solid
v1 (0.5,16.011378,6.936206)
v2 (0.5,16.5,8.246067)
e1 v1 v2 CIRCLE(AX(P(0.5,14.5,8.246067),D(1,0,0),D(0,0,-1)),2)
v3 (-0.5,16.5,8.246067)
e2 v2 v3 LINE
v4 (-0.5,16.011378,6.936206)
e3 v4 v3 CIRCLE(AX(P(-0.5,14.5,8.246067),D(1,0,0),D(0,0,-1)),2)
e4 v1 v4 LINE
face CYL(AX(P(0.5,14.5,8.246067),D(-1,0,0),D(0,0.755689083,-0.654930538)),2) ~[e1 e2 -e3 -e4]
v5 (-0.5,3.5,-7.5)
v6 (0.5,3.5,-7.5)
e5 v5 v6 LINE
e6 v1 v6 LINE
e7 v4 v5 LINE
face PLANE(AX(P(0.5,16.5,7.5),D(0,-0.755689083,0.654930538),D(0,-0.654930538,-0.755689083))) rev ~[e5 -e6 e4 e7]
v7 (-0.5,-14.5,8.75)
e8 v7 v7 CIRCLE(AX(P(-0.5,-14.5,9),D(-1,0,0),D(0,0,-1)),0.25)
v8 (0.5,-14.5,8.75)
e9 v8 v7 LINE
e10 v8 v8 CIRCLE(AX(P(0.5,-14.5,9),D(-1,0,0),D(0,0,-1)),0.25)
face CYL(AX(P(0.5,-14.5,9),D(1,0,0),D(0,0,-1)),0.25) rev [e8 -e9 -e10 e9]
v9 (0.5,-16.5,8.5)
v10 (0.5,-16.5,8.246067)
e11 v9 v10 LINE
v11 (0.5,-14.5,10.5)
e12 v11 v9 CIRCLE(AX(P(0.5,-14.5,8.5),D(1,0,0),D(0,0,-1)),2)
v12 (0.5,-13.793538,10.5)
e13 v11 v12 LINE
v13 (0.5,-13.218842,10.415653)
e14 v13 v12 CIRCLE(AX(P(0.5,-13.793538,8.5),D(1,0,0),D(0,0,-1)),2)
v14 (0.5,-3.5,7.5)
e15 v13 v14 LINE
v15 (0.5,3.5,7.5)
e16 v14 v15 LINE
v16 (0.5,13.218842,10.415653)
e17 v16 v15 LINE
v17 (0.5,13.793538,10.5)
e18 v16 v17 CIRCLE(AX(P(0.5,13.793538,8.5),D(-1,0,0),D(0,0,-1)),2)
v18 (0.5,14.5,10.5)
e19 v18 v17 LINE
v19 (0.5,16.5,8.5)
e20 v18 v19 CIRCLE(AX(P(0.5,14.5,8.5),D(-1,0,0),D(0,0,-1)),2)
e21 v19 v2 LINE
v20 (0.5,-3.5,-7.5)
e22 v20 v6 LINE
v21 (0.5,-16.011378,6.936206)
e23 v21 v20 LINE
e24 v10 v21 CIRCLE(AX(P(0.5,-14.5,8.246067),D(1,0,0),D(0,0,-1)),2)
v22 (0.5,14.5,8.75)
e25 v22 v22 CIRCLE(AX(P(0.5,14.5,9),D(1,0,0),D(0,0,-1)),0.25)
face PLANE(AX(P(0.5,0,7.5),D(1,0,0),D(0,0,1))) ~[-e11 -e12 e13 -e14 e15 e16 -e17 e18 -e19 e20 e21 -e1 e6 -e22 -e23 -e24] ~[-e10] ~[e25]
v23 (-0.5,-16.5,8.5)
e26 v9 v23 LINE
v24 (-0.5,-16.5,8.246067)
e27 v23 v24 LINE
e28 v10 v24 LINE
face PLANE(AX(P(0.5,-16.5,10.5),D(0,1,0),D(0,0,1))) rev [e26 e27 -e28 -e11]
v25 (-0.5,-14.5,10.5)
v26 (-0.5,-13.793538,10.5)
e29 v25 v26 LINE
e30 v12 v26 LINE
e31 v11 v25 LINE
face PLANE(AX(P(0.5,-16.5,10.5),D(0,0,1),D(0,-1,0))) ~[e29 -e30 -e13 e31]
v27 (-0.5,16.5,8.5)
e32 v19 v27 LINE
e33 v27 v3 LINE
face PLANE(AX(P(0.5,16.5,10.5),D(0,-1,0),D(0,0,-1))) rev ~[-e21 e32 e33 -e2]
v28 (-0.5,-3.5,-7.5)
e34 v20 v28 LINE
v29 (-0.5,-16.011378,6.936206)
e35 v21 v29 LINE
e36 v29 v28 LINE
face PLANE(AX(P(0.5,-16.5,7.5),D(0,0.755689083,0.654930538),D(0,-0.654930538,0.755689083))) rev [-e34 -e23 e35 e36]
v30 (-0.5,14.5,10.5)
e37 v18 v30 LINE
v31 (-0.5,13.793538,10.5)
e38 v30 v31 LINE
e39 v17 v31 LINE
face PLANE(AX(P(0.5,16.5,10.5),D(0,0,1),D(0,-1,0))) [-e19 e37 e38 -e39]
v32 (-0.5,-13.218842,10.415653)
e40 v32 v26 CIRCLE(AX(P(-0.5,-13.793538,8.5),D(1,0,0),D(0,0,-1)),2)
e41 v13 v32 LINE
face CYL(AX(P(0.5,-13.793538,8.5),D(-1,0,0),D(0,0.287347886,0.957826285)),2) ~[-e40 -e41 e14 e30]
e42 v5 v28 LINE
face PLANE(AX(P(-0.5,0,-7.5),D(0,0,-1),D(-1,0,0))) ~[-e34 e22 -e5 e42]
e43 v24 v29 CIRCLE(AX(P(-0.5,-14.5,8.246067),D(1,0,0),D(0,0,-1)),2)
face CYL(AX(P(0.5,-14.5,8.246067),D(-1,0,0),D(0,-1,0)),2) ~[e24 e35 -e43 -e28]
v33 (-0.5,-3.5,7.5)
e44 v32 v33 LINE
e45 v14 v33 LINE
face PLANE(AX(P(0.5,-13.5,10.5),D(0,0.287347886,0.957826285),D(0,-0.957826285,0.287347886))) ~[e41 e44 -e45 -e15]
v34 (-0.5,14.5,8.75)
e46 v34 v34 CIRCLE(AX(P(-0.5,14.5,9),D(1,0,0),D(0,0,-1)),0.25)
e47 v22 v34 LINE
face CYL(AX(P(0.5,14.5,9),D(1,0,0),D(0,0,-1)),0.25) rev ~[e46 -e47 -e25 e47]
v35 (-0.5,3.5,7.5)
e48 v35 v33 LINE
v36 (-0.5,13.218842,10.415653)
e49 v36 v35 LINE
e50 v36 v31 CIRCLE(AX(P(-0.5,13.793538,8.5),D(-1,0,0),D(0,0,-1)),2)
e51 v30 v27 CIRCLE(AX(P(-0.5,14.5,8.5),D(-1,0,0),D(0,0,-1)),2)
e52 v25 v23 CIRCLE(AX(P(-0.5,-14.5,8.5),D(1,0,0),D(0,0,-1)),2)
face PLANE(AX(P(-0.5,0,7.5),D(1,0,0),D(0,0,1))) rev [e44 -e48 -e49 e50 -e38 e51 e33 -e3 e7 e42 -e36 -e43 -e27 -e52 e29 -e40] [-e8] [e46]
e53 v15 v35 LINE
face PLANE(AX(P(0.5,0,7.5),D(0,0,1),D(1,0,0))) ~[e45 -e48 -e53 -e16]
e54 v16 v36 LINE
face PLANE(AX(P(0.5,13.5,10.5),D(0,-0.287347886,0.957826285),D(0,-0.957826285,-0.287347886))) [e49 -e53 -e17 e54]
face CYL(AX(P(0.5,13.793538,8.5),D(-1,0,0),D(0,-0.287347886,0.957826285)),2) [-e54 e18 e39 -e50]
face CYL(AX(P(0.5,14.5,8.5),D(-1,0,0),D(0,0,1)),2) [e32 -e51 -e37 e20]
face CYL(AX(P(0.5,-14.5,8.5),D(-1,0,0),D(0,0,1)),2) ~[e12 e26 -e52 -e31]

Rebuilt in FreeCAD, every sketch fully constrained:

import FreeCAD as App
import Part
import Sketcher


def edges_at(feature, points):
    """Names of the edges that pass closest to the given points."""
    edges = feature.Shape.Edges
    near = lambda p: min(range(len(edges)), key=lambda i: edges[i].distToShape(Part.Vertex(*p))[0])
    return sorted({f"Edge{near(p) + 1}" for p in points})

doc = App.newDocument("Part")
body = doc.addObject("PartDesign::Body", "Body")

sketch1 = doc.addObject("Sketcher::SketchObject", "Sketch")
body.addObject(sketch1)
sketch1.AttachmentSupport = (doc.XZ_Plane, [""])
sketch1.MapMode = "FlatFace"
sketch1.addGeometry(Part.LineSegment(App.Vector(-0.5, 7.5, 0), App.Vector(0.5, 7.5, 0)), False)
sketch1.addGeometry(Part.LineSegment(App.Vector(0.5, 7.5, 0), App.Vector(0.5, -7.5, 0)), False)
sketch1.addGeometry(Part.LineSegment(App.Vector(0.5, -7.5, 0), App.Vector(-0.5, -7.5, 0)), False)
sketch1.addGeometry(Part.LineSegment(App.Vector(-0.5, -7.5, 0), App.Vector(-0.5, 7.5, 0)), False)
sketch1.addConstraint(Sketcher.Constraint("Coincident", 0, 2, 1, 1))
sketch1.addConstraint(Sketcher.Constraint("Coincident", 1, 2, 2, 1))
sketch1.addConstraint(Sketcher.Constraint("Coincident", 2, 2, 3, 1))
sketch1.addConstraint(Sketcher.Constraint("Coincident", 3, 2, 0, 1))
sketch1.addConstraint(Sketcher.Constraint("Horizontal", 0))
sketch1.addConstraint(Sketcher.Constraint("Vertical", 1))
sketch1.addConstraint(Sketcher.Constraint("Horizontal", 2))
sketch1.addConstraint(Sketcher.Constraint("Vertical", 3))
sketch1.addConstraint(Sketcher.Constraint("Symmetric", 0, 2, 2, 2, -1, 1))
sketch1.addConstraint(Sketcher.Constraint("DistanceX", 0, 1, 0, 2, 1.0))
sketch1.addConstraint(Sketcher.Constraint("DistanceY", 1, 2, 1, 1, 15.0))
pad1 = doc.addObject("PartDesign::Pad", "Pad")
body.addObject(pad1)
pad1.Profile = sketch1
pad1.Length = 3.5
pad1.Reversed = True

sketch2 = doc.addObject("Sketcher::SketchObject", "Sketch001")
body.addObject(sketch2)
sketch2.AttachmentSupport = (doc.YZ_Plane, [""])
sketch2.MapMode = "FlatFace"
sketch2.AttachmentOffset = App.Placement(App.Vector(0, 0, 0.5), App.Rotation())
sketch2.addGeometry(Part.LineSegment(App.Vector(3.5, 7.5, 0), App.Vector(3.5, -7.5, 0)), False)
sketch2.addGeometry(Part.LineSegment(App.Vector(3.5, -7.5, 0), App.Vector(16.5, 7.5, 0)), False)
sketch2.addGeometry(Part.LineSegment(App.Vector(16.5, 7.5, 0), App.Vector(16.5, 10.5, 0)), False)
sketch2.addGeometry(Part.LineSegment(App.Vector(16.5, 10.5, 0), App.Vector(13.5, 10.5, 0)), False)
sketch2.addGeometry(Part.LineSegment(App.Vector(13.5, 10.5, 0), App.Vector(3.5, 7.5, 0)), False)
sketch2.addGeometry(Part.Circle(App.Vector(14.5, 9, 0), App.Vector(0, 0, 1), 0.25), False)
sketch2.addConstraint(Sketcher.Constraint("Coincident", 0, 2, 1, 1))
sketch2.addConstraint(Sketcher.Constraint("Coincident", 1, 2, 2, 1))
sketch2.addConstraint(Sketcher.Constraint("Coincident", 2, 2, 3, 1))
sketch2.addConstraint(Sketcher.Constraint("Coincident", 3, 2, 4, 1))
sketch2.addConstraint(Sketcher.Constraint("Coincident", 4, 2, 0, 1))
sketch2.addConstraint(Sketcher.Constraint("Vertical", 0))
sketch2.addConstraint(Sketcher.Constraint("Vertical", 2))
sketch2.addConstraint(Sketcher.Constraint("Horizontal", 3))
sketch2.addConstraint(Sketcher.Constraint("Horizontal", 1, 2, 4, 2))
sketch2.addConstraint(Sketcher.Constraint("Equal", 3, 2))
sketch2.addConstraint(Sketcher.Constraint("Diameter", 5, 0.5))
sketch2.addConstraint(Sketcher.Constraint("DistanceX", 3, 2, 3, 1, 3.0))
sketch2.addConstraint(Sketcher.Constraint("DistanceX", 5, 3, 1, 2, 2.0))
sketch2.addConstraint(Sketcher.Constraint("DistanceX", 0, 2, 1, 2, 13.0))
sketch2.addConstraint(Sketcher.Constraint("DistanceY", 0, 2, 0, 1, 15.0))
sketch2.addConstraint(Sketcher.Constraint("DistanceY", -1, 1, 5, 3, 9.0))
sketch2.addConstraint(Sketcher.Constraint("DistanceX", -1, 1, 5, 3, 14.5))
sketch2.addConstraint(Sketcher.Constraint("DistanceY", 0, 2, -1, 1, 7.5))
pad2 = doc.addObject("PartDesign::Pad", "Pad001")
body.addObject(pad2)
pad2.Profile = sketch2
pad2.Length = 1
pad2.Reversed = True
doc.recompute()

fillet = doc.addObject("PartDesign::Fillet", "Fillet")
body.addObject(fillet)
fillet.Base = (pad2, edges_at(pad2, [(0, 16.5, 10.5), (0, 16.5, 7.5), (0, 13.5, 10.5)]))
fillet.Radius = 2
doc.recompute()

mirrored = doc.addObject("PartDesign::Mirrored", "Mirrored")
body.addObject(mirrored)
mirrored.Originals = [pad2, pad1, fillet]
mirrored.MirrorPlane = (doc.XZ_Plane, [""])
body.Tip = mirrored

doc.recompute()
